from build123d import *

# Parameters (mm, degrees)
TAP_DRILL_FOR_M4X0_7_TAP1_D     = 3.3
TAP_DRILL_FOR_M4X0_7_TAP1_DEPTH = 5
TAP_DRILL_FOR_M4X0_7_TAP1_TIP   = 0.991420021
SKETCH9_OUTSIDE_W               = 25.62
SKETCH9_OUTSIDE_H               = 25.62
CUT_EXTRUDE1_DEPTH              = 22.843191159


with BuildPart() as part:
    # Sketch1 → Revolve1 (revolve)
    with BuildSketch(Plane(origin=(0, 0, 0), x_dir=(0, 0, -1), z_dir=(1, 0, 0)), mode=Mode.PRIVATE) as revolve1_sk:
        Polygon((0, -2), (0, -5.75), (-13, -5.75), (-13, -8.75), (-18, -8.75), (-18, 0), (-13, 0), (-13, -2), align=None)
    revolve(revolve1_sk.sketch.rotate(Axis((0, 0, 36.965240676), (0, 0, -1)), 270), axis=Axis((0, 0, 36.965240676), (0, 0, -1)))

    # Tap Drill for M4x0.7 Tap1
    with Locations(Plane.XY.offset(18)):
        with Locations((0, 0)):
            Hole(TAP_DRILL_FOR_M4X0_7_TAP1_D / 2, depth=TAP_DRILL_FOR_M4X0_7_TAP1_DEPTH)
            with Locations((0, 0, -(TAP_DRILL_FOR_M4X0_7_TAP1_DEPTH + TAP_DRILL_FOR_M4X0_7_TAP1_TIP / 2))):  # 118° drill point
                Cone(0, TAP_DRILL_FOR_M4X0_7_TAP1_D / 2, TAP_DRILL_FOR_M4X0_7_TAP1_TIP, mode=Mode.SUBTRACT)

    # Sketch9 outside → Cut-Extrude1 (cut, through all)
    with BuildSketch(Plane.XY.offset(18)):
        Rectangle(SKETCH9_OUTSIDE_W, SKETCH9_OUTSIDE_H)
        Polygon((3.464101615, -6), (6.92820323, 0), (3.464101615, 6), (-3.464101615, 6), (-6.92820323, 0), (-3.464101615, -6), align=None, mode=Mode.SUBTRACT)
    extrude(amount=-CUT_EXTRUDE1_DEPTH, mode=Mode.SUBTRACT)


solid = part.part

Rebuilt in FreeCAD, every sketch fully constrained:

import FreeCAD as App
import Part
import Sketcher
Q = App.Units.Quantity


def add_polygon(sketch, points):
    """Adds a closed chain of lines whose ends are joined by coincident constraints."""
    first, n = sketch.GeometryCount, len(points)
    for a, b in zip(points, points[1:] + points[:1]):
        sketch.addGeometry(Part.LineSegment(App.Vector(*a, 0), App.Vector(*b, 0)), False)
    for i in range(n):
        sketch.addConstraint(Sketcher.Constraint("Coincident", first + i, 2, first + (i + 1) % n, 1))

doc = App.newDocument("Part")
body = doc.addObject("PartDesign::Body", "Body")

# Sketch on YZ plane
sketch1 = body.newObject("Sketcher::SketchObject", "Sketch")
sketch1.AttachmentSupport = (doc.getObject("YZ_Plane"), [""])
sketch1.MapMode = "FlatFace"
add_polygon(sketch1, [(-5.75, 0), (-2, 0), (-2, 13), (0, 13), (0, 18), (-8.75, 18), (-8.75, 13), (-5.75, 13)])  # lines 0-7
sketch1.addConstraint([
    Sketcher.Constraint("Horizontal", 0),
    Sketcher.Constraint("Vertical", 1),
    Sketcher.Constraint("Horizontal", 2),
    Sketcher.Constraint("Vertical", 3),
    Sketcher.Constraint("Horizontal", 4),
    Sketcher.Constraint("Vertical", 5),
    Sketcher.Constraint("Horizontal", 6),
    Sketcher.Constraint("Vertical", 7),
    Sketcher.Constraint("PointOnObject", 0, 2, -1),
    Sketcher.Constraint("PointOnObject", 2, 2, -2),
    Sketcher.Constraint("Horizontal", 2, 2, 5, 2),
    Sketcher.Constraint("DistanceX", 2, 1, 2, 2, Q("2 mm")),
    Sketcher.Constraint("DistanceX", 6, 1, 6, 2, Q("3 mm")),
    Sketcher.Constraint("DistanceY", 1, 1, 1, 2, Q("13 mm")),
    Sketcher.Constraint("DistanceY", 3, 1, 3, 2, Q("5 mm")),
    Sketcher.Constraint("DistanceX", 0, 1, 0, 2, Q("3.75 mm")),
])
revolution = body.newObject("PartDesign::Revolution", "Revolution")
revolution.Profile = sketch1
revolution.ReferenceAxis = (sketch1, ["V_Axis"])
revolution.Angle = 360

# Sketch on XY plane
sketch2 = body.newObject("Sketcher::SketchObject", "Sketch001")
sketch2.AttachmentSupport = (doc.getObject("XY_Plane"), [""])
sketch2.MapMode = "FlatFace"
sketch2.AttachmentOffset = App.Placement(App.Vector(0, 0, 18), App.Rotation())
sketch2.addGeometry(Part.Circle(App.Vector(0, 0, 0), App.Vector(0, 0, 1), 1.65), False)
sketch2.addConstraint([
    Sketcher.Constraint("Coincident", 0, 3, -1, 1),
    Sketcher.Constraint("Diameter", 0, Q("3.3 mm")),
])
doc.recompute()
hole = body.newObject("PartDesign::Hole", "Hole")
hole.Profile = sketch2
hole.ThreadType = "None"
hole.Diameter = 3.3
hole.DepthType = "Dimension"
hole.Depth = 5
hole.DrillPoint = "Angled"
hole.DrillPointAngle = 118

# Sketch on XY plane
sketch3 = body.newObject("Sketcher::SketchObject", "Sketch002")
sketch3.AttachmentSupport = (doc.getObject("XY_Plane"), [""])
sketch3.MapMode = "FlatFace"
sketch3.AttachmentOffset = App.Placement(App.Vector(0, 0, 18), App.Rotation())
add_polygon(sketch3, [(-12.81, 12.81), (-12.81, -12.81), (12.81, -12.81), (12.81, 12.81)])  # lines 0-3
add_polygon(sketch3, [(6.928203, 0), (3.464102, -6), (-3.464102, -6), (-6.928203, 0), (-3.464102, 6), (3.464102, 6)])  # lines 4-9
sketch3.addConstraint([
    Sketcher.Constraint("Vertical", 0),
    Sketcher.Constraint("Horizontal", 1),
    Sketcher.Constraint("Vertical", 2),
    Sketcher.Constraint("Horizontal", 3),
    Sketcher.Constraint("Horizontal", 5),
    Sketcher.Constraint("Horizontal", 8),
    Sketcher.Constraint("Symmetric", 0, 2, 2, 2, -1, 1),
    Sketcher.Constraint("Symmetric", 4, 2, 7, 2, -1, 1),
    Sketcher.Constraint("Symmetric", 6, 2, 9, 2, -1, 1),
    Sketcher.Constraint("PointOnObject", 6, 2, -1),
    Sketcher.Constraint("Parallel", 6, 9),
    Sketcher.Constraint("Vertical", 5, 2, 7, 2),
    Sketcher.Constraint("Equal", 3, 0),
    Sketcher.Constraint("Angle", 4, Q("-120 deg")),
    Sketcher.Constraint("DistanceY", 4, 2, -1, 1, Q("6 mm")),
    Sketcher.Constraint("DistanceX", 1, 1, 1, 2, Q("25.62 mm")),
    Sketcher.Constraint("DistanceX", -1, 1, 4, 2, Q("3.464102 mm")),
])
pocket1 = body.newObject("PartDesign::Pocket", "Pocket")
pocket1.Profile = sketch3
pocket1.Type = "ThroughAll"

doc.recompute()
